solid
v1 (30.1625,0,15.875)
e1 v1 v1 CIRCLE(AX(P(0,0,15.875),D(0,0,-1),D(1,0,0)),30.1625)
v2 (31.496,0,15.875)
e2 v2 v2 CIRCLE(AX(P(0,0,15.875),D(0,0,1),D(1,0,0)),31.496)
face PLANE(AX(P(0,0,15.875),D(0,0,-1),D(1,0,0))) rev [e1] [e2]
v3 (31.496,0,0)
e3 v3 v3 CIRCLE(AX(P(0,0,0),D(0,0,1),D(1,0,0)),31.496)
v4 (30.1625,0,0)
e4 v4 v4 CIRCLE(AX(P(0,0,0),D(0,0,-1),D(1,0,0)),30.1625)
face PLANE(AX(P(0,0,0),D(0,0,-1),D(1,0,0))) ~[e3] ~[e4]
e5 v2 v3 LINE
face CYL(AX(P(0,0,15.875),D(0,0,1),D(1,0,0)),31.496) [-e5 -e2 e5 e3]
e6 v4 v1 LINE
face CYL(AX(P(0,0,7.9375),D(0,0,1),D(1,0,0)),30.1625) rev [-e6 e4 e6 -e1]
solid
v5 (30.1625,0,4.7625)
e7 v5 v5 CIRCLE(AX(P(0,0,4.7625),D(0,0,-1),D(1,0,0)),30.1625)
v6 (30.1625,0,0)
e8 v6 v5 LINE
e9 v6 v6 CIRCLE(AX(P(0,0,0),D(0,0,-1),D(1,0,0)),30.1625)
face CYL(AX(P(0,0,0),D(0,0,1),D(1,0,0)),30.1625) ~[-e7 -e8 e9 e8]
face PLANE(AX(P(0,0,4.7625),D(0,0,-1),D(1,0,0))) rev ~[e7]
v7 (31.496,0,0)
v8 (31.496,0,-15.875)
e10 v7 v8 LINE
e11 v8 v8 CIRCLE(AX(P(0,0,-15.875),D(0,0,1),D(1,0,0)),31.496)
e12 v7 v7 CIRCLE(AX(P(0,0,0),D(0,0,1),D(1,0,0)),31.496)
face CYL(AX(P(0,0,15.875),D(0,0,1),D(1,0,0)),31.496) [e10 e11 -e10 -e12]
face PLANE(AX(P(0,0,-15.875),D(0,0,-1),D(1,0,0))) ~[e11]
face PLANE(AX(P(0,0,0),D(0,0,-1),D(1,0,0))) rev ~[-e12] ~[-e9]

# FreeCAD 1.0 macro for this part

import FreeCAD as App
import Part
import Sketcher

V = App.Vector
Q = App.Units.Quantity

doc = App.newDocument("Part")
body = doc.addObject("PartDesign::Body", "Body")

sketch1 = doc.addObject("Sketcher::SketchObject", "Sketch")
body.addObject(sketch1)
sketch1.AttachmentSupport = (doc.XZ_Plane, [""])
sketch1.MapMode = "FlatFace"
sketch1.addGeometry([
    Part.LineSegment(V(30.1625, 0, 0), V(30.1625, 4.7625, 0)),
    Part.LineSegment(V(30.1625, 4.7625, 0), V(0, 4.7625, 0)),
    Part.LineSegment(V(0, 4.7625, 0), V(0, -15.875, 0)),
    Part.LineSegment(V(0, -15.875, 0), V(31.75, -15.875, 0)),
    Part.LineSegment(V(31.75, -15.875, 0), V(31.75, 0, 0)),
    Part.LineSegment(V(31.75, 0, 0), V(30.1625, 0, 0)),
], False)
sketch1.addConstraint([
    Sketcher.Constraint("Coincident", 0, 2, 1, 1),
    Sketcher.Constraint("Coincident", 1, 2, 2, 1),
    Sketcher.Constraint("Coincident", 2, 2, 3, 1),
    Sketcher.Constraint("Coincident", 3, 2, 4, 1),
    Sketcher.Constraint("Coincident", 4, 2, 5, 1),
    Sketcher.Constraint("Coincident", 5, 2, 0, 1),
    Sketcher.Constraint("Vertical", 0),
    Sketcher.Constraint("Horizontal", 1),
    Sketcher.Constraint("Vertical", 2),
    Sketcher.Constraint("Horizontal", 3),
    Sketcher.Constraint("Vertical", 4),
    Sketcher.Constraint("Horizontal", 5),
    Sketcher.Constraint("PointOnObject", 1, 2, -2),
    Sketcher.Constraint("PointOnObject", 4, 2, -1),
    Sketcher.Constraint("DistanceX", 3, 1, 3, 2, Q("1.25 in")),
    Sketcher.Constraint("DistanceX", 1, 2, 1, 1, Q("1.1875 in")),
    Sketcher.Constraint("DistanceY", 0, 1, 0, 2, Q("0.1875 in")),
    Sketcher.Constraint("DistanceY", 2, 2, 2, 1, Q("0.8125 in")),
])
revolution = doc.addObject("PartDesign::Revolution", "Revolution")
body.addObject(revolution)
revolution.Profile = sketch1
revolution.ReferenceAxis = (sketch1, ["V_Axis"])
revolution.Angle = 360
body2 = doc.addObject("PartDesign::Body", "Body001")

sketch2 = doc.addObject("Sketcher::SketchObject", "Sketch001")
body2.addObject(sketch2)
sketch2.AttachmentSupport = (doc.getObject("XZ_Plane001"), [""])
sketch2.MapMode = "FlatFace"
sketch2.addGeometry([
    Part.LineSegment(V(30.1625, 15.875, 0), V(30.1625, 0, 0)),
    Part.LineSegment(V(30.1625, 0, 0), V(31.75, 0, 0)),
    Part.LineSegment(V(31.75, 0, 0), V(31.75, 15.875, 0)),
    Part.LineSegment(V(31.75, 15.875, 0), V(30.1625, 15.875, 0)),
], False)
sketch2.addConstraint([
    Sketcher.Constraint("Coincident", 0, 2, 1, 1),
    Sketcher.Constraint("Coincident", 1, 2, 2, 1),
    Sketcher.Constraint("Coincident", 2, 2, 3, 1),
    Sketcher.Constraint("Coincident", 3, 2, 0, 1),
    Sketcher.Constraint("Vertical", 0),
    Sketcher.Constraint("Horizontal", 1),
    Sketcher.Constraint("Vertical", 2),
    Sketcher.Constraint("Horizontal", 3),
    Sketcher.Constraint("PointOnObject", 0, 2, -1),
    Sketcher.Constraint("DistanceX", 1, 1, 1, 2, Q("0.0625 in")),
    Sketcher.Constraint("DistanceY", 0, 2, 0, 1, Q("0.625 in")),
    Sketcher.Constraint("DistanceX", -1, 1, 1, 2, Q("1.25 in")),
])
revolution2 = doc.addObject("PartDesign::Revolution", "Revolution001")
body2.addObject(revolution2)
revolution2.Profile = sketch2
revolution2.ReferenceAxis = (sketch2, ["V_Axis"])
revolution2.Angle = 360
body3 = doc.addObject("PartDesign::Body", "Body002")

sketch3 = doc.addObject("Sketcher::SketchObject", "Sketch002")
body3.addObject(sketch3)
sketch3.AttachmentSupport = (doc.getObject("XY_Plane002"), [""])
sketch3.MapMode = "FlatFace"
sketch3.AttachmentOffset = App.Placement(V(0, 0, 0.625 * 25.4), App.Rotation())
sketch3.addGeometry([
    Part.Circle(V(0, 0, 0), V(0, 0, 1), 31.75),
    Part.Circle(V(0, 0, 0), V(0, 0, 1), 31.496),
], False)
sketch3.addConstraint([
    Sketcher.Constraint("Coincident", 0, 3, -1, 1),
    Sketcher.Constraint("Coincident", 1, 3, -1, 1),
    Sketcher.Constraint("Diameter", 0, Q("2.5 in")),
    Sketcher.Constraint("Diameter", 1, Q("2.48 in")),
])
pad1 = doc.addObject("PartDesign::Pad", "Pad")
body3.addObject(pad1)
pad1.Profile = sketch3
pad1.Length = 31.751
pad1.Reversed = True
doc.recompute()

body4 = doc.addObject("PartDesign::Body", "Body003")
body4.BaseFeature = body3
boolean = doc.addObject("PartDesign::Boolean", "Boolean")
body.addObject(boolean)
boolean.Type = "Cut"
boolean.addObjects([body4])
doc.recompute()

boolean2 = doc.addObject("PartDesign::Boolean", "Boolean001")
body2.addObject(boolean2)
boolean2.Type = "Cut"
boolean2.addObjects([body3])

doc.recompute()
